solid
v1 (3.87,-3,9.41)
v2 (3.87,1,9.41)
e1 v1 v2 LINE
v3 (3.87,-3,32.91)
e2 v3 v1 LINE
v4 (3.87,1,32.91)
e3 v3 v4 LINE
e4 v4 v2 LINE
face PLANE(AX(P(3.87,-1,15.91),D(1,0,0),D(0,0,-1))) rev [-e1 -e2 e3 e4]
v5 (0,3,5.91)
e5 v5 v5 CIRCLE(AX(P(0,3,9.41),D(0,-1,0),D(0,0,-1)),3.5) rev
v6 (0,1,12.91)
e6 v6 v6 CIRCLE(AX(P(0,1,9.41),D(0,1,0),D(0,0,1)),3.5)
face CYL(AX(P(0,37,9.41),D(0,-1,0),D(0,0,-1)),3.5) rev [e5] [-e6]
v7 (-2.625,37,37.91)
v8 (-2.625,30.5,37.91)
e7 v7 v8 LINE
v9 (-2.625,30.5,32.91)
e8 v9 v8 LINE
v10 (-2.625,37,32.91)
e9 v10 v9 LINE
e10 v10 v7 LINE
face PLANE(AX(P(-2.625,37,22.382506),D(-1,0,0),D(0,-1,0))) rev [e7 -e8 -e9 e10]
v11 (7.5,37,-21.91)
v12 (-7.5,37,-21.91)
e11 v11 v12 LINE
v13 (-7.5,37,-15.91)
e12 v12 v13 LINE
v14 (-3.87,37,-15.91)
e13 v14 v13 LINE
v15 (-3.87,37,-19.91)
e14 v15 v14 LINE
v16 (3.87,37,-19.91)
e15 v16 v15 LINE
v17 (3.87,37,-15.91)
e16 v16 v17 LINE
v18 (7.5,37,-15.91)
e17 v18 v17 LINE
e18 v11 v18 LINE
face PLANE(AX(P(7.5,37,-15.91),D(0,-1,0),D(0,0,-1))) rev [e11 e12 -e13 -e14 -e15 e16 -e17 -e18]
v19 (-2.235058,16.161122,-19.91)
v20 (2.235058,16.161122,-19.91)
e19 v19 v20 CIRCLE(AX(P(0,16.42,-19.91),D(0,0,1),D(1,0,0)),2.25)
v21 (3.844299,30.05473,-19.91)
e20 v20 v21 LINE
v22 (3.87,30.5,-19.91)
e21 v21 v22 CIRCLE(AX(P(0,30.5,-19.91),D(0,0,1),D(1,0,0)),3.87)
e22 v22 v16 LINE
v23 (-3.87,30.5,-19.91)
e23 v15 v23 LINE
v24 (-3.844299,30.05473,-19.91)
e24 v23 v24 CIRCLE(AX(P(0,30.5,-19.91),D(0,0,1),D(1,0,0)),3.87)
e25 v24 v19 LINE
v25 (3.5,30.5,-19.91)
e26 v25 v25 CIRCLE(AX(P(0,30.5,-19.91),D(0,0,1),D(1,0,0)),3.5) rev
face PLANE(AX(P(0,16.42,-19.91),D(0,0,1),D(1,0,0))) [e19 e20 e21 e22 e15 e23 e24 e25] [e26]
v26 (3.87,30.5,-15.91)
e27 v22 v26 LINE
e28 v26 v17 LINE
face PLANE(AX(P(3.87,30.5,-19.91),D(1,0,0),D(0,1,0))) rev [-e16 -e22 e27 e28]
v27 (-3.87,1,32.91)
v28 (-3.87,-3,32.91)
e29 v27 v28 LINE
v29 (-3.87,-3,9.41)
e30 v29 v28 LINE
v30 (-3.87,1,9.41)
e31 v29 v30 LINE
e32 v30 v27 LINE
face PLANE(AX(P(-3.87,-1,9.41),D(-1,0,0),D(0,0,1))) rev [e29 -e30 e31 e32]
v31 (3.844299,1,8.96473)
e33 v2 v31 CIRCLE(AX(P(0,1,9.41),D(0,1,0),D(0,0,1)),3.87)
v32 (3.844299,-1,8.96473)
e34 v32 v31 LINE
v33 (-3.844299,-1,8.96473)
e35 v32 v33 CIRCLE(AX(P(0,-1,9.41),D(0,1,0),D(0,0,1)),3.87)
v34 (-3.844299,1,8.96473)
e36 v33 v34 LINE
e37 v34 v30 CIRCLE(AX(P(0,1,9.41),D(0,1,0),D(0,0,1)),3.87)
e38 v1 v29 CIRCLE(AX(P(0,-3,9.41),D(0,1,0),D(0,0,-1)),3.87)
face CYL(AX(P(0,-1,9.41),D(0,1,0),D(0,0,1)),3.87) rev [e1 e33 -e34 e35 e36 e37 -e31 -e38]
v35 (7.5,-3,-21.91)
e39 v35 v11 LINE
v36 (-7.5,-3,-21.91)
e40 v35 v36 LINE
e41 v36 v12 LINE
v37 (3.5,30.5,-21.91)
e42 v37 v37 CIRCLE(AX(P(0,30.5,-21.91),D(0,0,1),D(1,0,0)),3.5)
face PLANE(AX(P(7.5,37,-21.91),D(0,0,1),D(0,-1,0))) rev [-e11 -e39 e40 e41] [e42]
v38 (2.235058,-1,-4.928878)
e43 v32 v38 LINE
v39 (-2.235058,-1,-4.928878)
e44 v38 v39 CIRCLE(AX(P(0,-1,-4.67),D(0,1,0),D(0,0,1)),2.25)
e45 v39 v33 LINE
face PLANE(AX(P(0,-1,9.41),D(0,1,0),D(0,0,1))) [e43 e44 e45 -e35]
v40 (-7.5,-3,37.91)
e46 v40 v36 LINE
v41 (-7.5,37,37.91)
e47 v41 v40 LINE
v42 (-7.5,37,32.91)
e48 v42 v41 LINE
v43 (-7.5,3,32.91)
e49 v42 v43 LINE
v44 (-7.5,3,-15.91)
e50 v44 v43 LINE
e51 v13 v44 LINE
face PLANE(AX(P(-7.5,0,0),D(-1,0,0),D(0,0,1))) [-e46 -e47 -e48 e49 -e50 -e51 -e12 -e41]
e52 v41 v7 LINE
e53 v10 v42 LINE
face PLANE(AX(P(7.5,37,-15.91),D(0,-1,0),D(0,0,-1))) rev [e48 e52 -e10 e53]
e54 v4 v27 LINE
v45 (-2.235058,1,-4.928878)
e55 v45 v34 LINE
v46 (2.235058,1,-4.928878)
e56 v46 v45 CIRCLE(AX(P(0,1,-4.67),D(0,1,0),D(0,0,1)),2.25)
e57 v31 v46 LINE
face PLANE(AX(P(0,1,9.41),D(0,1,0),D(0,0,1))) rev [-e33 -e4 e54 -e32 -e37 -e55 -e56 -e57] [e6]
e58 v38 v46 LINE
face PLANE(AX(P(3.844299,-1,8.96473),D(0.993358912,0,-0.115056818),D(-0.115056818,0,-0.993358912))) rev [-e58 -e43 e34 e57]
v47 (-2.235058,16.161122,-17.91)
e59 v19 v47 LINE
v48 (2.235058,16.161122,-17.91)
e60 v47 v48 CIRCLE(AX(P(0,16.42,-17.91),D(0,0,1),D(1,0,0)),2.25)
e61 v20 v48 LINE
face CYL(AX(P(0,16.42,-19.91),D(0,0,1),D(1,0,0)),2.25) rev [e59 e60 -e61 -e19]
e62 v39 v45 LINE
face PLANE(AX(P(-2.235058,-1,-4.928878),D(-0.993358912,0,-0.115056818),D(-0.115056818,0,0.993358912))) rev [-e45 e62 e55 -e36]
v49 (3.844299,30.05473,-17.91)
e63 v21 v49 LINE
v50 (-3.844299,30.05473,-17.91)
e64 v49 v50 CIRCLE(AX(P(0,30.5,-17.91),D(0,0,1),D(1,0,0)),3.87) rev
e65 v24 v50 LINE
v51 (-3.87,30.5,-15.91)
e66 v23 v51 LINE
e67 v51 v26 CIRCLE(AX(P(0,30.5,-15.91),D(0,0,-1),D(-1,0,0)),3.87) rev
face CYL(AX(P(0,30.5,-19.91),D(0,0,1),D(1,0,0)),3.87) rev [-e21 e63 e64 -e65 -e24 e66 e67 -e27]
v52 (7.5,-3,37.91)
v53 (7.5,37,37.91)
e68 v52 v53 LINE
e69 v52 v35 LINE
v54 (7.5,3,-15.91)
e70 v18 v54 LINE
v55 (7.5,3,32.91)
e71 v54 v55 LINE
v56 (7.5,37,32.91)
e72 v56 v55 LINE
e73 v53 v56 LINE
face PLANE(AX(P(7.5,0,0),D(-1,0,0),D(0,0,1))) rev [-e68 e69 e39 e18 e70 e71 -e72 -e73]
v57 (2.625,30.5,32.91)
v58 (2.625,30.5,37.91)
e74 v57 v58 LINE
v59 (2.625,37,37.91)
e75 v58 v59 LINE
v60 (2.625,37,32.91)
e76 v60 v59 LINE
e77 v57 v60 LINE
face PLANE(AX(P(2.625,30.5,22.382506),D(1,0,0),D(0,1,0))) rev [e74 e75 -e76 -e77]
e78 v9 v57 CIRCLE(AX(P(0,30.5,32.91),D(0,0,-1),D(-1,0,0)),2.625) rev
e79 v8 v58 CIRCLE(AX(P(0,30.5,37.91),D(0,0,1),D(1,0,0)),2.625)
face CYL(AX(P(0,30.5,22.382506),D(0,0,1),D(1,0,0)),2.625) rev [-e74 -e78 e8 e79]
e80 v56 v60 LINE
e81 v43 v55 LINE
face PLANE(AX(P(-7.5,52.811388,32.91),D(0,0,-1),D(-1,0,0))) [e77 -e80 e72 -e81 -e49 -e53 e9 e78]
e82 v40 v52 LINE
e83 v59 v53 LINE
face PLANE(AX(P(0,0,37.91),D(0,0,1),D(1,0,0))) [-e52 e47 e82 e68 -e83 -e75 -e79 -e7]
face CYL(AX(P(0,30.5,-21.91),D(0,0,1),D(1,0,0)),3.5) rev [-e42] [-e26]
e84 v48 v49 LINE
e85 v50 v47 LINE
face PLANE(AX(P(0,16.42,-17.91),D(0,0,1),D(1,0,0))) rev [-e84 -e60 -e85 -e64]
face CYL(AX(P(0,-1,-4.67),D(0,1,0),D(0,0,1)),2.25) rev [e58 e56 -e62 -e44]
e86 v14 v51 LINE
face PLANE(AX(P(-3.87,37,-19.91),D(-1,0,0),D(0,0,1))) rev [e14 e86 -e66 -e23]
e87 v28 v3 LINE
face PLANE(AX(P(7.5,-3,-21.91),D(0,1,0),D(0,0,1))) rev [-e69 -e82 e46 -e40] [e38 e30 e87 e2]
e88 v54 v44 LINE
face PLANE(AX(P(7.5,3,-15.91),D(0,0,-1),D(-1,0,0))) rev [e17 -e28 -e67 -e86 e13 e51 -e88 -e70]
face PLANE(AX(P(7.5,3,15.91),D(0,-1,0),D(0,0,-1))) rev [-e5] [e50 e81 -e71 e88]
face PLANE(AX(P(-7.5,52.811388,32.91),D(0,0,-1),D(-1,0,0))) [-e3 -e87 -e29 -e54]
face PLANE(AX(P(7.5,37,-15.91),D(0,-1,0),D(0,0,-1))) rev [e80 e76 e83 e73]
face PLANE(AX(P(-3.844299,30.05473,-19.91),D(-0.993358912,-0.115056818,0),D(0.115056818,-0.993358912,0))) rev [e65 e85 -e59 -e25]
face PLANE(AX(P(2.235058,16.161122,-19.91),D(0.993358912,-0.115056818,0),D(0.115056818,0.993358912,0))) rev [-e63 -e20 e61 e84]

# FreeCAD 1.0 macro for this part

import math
import FreeCAD as App
import Part
import Sketcher
from FreeCAD import Vector
Q = App.Units.Quantity

doc = App.newDocument("Part")
params = doc.addObject("Spreadsheet::Sheet", "Params")
for row, (alias, value) in enumerate([
    ("sketch1_width", "6 mm"),
    ("sketch1_width2", "40 mm"),
    ("sketch1_height", "37.82 mm"),
    ("pad1_length", "15 mm"),
    ("sketch2_diameter", "7 mm"),
    ("sketch3_diameter", "7 mm"),
    ("sketch4_radius", "3.87 mm"),
    ("sketch4_radius2", "2.25 mm"),
    ("sketch4_height", "6.5 mm"),
    ("pocket3_length", "2 mm"),
    ("sketch5_radius", "3.87 mm"),
    ("sketch5_height", "6.5 mm"),
    ("sketch6_radius", "3.87 mm"),
    ("sketch6_radius2", "2.25 mm"),
    ("sketch6_height", "6.5 mm"),
    ("pocket5_length", "2 mm"),
    ("sketch7_radius", "3.87 mm"),
    ("sketch7_height", "6.5 mm"),
    ("sketch8_width", "15 mm"),
    ("sketch8_height", "4 mm"),
    ("sketch8_height2", "6 mm"),
    ("sketch8_width2", "3.63 mm"),
    ("pad2_length", "22 mm"),
    ("sketch9_width", "15 mm"),
    ("sketch9_height", "5 mm"),
    ("pad3_length", "40 mm"),
    ("sketch10_height", "6.5 mm"),
    ("pocket7_length", "5 mm"),
], start=1):
    params.set(f"A{row}", alias)
    params.set(f"B{row}", "=" + value)
    params.setAlias(f"B{row}", alias)

body = doc.addObject("PartDesign::Body", "Body")

sketch1 = doc.addObject("Sketcher::SketchObject", "Sketch")
body.addObject(sketch1)
sketch1.AttachmentSupport = (doc.YZ_Plane, [""])
sketch1.MapMode = "FlatFace"
sketch1.addGeometry([
    Part.LineSegment(Vector(3, 15.91, 0), Vector(-3, 15.91, 0)),
    Part.LineSegment(Vector(-3, 15.91, 0), Vector(-3, -21.91, 0)),
    Part.LineSegment(Vector(-3, -21.91, 0), Vector(37, -21.91, 0)),
    Part.LineSegment(Vector(37, -21.91, 0), Vector(37, -15.91, 0)),
    Part.LineSegment(Vector(37, -15.91, 0), Vector(3, -15.91, 0)),
    Part.LineSegment(Vector(3, -15.91, 0), Vector(3, 15.91, 0)),
], False)
sketch1.addConstraint([
    Sketcher.Constraint("Coincident", 0, 2, 1, 1),
    Sketcher.Constraint("Coincident", 1, 2, 2, 1),
    Sketcher.Constraint("Coincident", 2, 2, 3, 1),
    Sketcher.Constraint("Coincident", 3, 2, 4, 1),
    Sketcher.Constraint("Coincident", 4, 2, 5, 1),
    Sketcher.Constraint("Coincident", 5, 2, 0, 1),
    Sketcher.Constraint("Horizontal", 0),
    Sketcher.Constraint("Vertical", 1),
    Sketcher.Constraint("Horizontal", 2),
    Sketcher.Constraint("Vertical", 3),
    Sketcher.Constraint("Horizontal", 4),
    Sketcher.Constraint("Vertical", 5),
    Sketcher.Constraint("Symmetric", 0, 2, 4, 2, -1, 1),
    Sketcher.Constraint("Equal", 0, 3),
    Sketcher.Constraint("DistanceX", 0, 2, 0, 1, Q("6 mm")),
    Sketcher.Constraint("DistanceX", 2, 1, 2, 2, Q("40 mm")),
    Sketcher.Constraint("DistanceY", 1, 2, 1, 1, Q("37.82 mm")),
])
sketch1.setExpression("Constraints[14]", "Params.sketch1_width")
sketch1.setExpression("Constraints[15]", "Params.sketch1_width2")
sketch1.setExpression("Constraints[16]", "Params.sketch1_height")
pad1 = doc.addObject("PartDesign::Pad", "Pad")
body.addObject(pad1)
pad1.Profile = sketch1
pad1.setExpression("Length", "Params.pad1_length")
pad1.Midplane = True

sketch2 = doc.addObject("Sketcher::SketchObject", "Sketch001")
body.addObject(sketch2)
sketch2.AttachmentSupport = (doc.XZ_Plane, [""])
sketch2.MapMode = "FlatFace"
sketch2.addGeometry(Part.Circle(Vector(0, 9.41, 0), Vector(0, 0, 1), 3.5), False)
sketch2.addConstraint([
    Sketcher.Constraint("PointOnObject", 0, 3, -2),
    Sketcher.Constraint("Diameter", 0, Q("7 mm")),
    Sketcher.Constraint("DistanceY", -1, 1, 0, 3, Q("9.41 mm")),
])
sketch2.setExpression("Constraints[1]", "Params.sketch2_diameter")
pocket1 = doc.addObject("PartDesign::Pocket", "Pocket")
body.addObject(pocket1)
pocket1.Profile = sketch2
pocket1.Type = "ThroughAll"

sketch3 = doc.addObject("Sketcher::SketchObject", "Sketch002")
body.addObject(sketch3)
sketch3.AttachmentSupport = (doc.XY_Plane, [""])
sketch3.MapMode = "FlatFace"
sketch3.AttachmentOffset = App.Placement(Vector(0, 0, -18.91), App.Rotation())
sketch3.addGeometry(Part.Circle(Vector(0, 30.5, 0), Vector(0, 0, 1), 3.5), False)
sketch3.addConstraint([
    Sketcher.Constraint("PointOnObject", 0, 3, -2),
    Sketcher.Constraint("Diameter", 0, Q("7 mm")),
    Sketcher.Constraint("DistanceY", -1, 1, 0, 3, Q("30.5 mm")),
])
sketch3.setExpression("Constraints[1]", "Params.sketch3_diameter")
pocket2 = doc.addObject("PartDesign::Pocket", "Pocket001")
body.addObject(pocket2)
pocket2.Profile = sketch3
pocket2.Type = "ThroughAll"

sketch4 = doc.addObject("Sketcher::SketchObject", "Sketch003")
body.addObject(sketch4)
sketch4.AttachmentSupport = (doc.XY_Plane, [""])
sketch4.MapMode = "FlatFace"
sketch4.AttachmentOffset = App.Placement(Vector(0, 0, -18.91), App.Rotation())
sketch4.addGeometry([
    Part.LineSegment(Vector(2.235058, 16.161122, 0), Vector(3.844299, 30.05473, 0)),
    Part.ArcOfCircle(Part.Circle(Vector(0, 30.5, 0), Vector(0, 0, 1), 3.87), math.radians(-6.606902), math.radians(0)),
    Part.LineSegment(Vector(3.87, 30.5, 0), Vector(3.87, 37, 0)),
    Part.LineSegment(Vector(3.87, 37, 0), Vector(-3.87, 37, 0)),
    Part.LineSegment(Vector(-3.87, 37, 0), Vector(-3.87, 30.5, 0)),
    Part.ArcOfCircle(Part.Circle(Vector(0, 30.5, 0), Vector(0, 0, 1), 3.87), math.radians(180), math.radians(186.606902)),
    Part.LineSegment(Vector(-3.844299, 30.05473, 0), Vector(-2.235058, 16.161122, 0)),
    Part.ArcOfCircle(Part.Circle(Vector(0, 16.42, 0), Vector(0, 0, 1), 2.25), math.radians(-173.393098), math.radians(-6.606902)),
], False)
sketch4.addConstraint([
    Sketcher.Constraint("Tangent", 0, 2, 1, 1),
    Sketcher.Constraint("Tangent", 1, 2, 2, 1),
    Sketcher.Constraint("Coincident", 2, 2, 3, 1),
    Sketcher.Constraint("Coincident", 3, 2, 4, 1),
    Sketcher.Constraint("Tangent", 4, 2, 5, 1),
    Sketcher.Constraint("Tangent", 5, 2, 6, 1),
    Sketcher.Constraint("Tangent", 6, 2, 7, 1),
    Sketcher.Constraint("Tangent", 7, 2, 0, 1),
    Sketcher.Constraint("Vertical", 2),
    Sketcher.Constraint("Horizontal", 3),
    Sketcher.Constraint("Vertical", 4),
    Sketcher.Constraint("Coincident", 5, 3, 1, 3),
    Sketcher.Constraint("Equal", 1, 5),
    Sketcher.Constraint("Symmetric", 0, 2, 5, 2, -2),
    Sketcher.Constraint("Radius", 1, Q("3.87 mm")),
    Sketcher.Constraint("Radius", 7, Q("2.25 mm")),
    Sketcher.Constraint("DistanceY", 2, 1, 2, 2, Q("6.5 mm")),
    Sketcher.Constraint("DistanceY", -1, 1, 2, 2, Q("37 mm")),
    Sketcher.Constraint("DistanceY", -1, 1, 7, 3, Q("16.42 mm")),
])
sketch4.setExpression("Constraints[14]", "Params.sketch4_radius")
sketch4.setExpression("Constraints[15]", "Params.sketch4_radius2")
sketch4.setExpression("Constraints[16]", "Params.sketch4_height")
pocket3 = doc.addObject("PartDesign::Pocket", "Pocket002")
body.addObject(pocket3)
pocket3.Profile = sketch4
pocket3.setExpression("Length", "Params.pocket3_length")
pocket3.Midplane = True

sketch5 = doc.addObject("Sketcher::SketchObject", "Sketch004")
body.addObject(sketch5)
sketch5.AttachmentSupport = (doc.XY_Plane, [""])
sketch5.MapMode = "FlatFace"
sketch5.AttachmentOffset = App.Placement(Vector(0, 0, -19.91), App.Rotation())
sketch5.addGeometry([
    Part.LineSegment(Vector(3.87, 30.5, 0), Vector(3.87, 37, 0)),
    Part.LineSegment(Vector(3.87, 37, 0), Vector(-3.87, 37, 0)),
    Part.LineSegment(Vector(-3.87, 37, 0), Vector(-3.87, 30.5, 0)),
    Part.ArcOfCircle(Part.Circle(Vector(0, 30.5, 0), Vector(0, 0, 1), 3.87), math.radians(180), math.radians(360)),
], False)
sketch5.addConstraint([
    Sketcher.Constraint("Coincident", 0, 2, 1, 1),
    Sketcher.Constraint("Coincident", 1, 2, 2, 1),
    Sketcher.Constraint("Tangent", 2, 2, 3, 1),
    Sketcher.Constraint("Tangent", 3, 2, 0, 1),
    Sketcher.Constraint("Vertical", 0),
    Sketcher.Constraint("Horizontal", 1),
    Sketcher.Constraint("Vertical", 2),
    Sketcher.Constraint("PointOnObject", 3, 3, -2),
    Sketcher.Constraint("Radius", 3, Q("3.87 mm")),
    Sketcher.Constraint("DistanceY", 0, 1, 0, 2, Q("6.5 mm")),
    Sketcher.Constraint("DistanceY", -1, 1, 0, 2, Q("37 mm")),
])
sketch5.setExpression("Constraints[8]", "Params.sketch5_radius")
sketch5.setExpression("Constraints[9]", "Params.sketch5_height")
pocket4 = doc.addObject("PartDesign::Pocket", "Pocket003")
body.addObject(pocket4)
pocket4.Profile = sketch5
pocket4.Type = "ThroughAll"
pocket4.Reversed = True

sketch6 = doc.addObject("Sketcher::SketchObject", "Sketch005")
body.addObject(sketch6)
sketch6.AttachmentSupport = (doc.XZ_Plane, [""])
sketch6.MapMode = "FlatFace"
sketch6.addGeometry([
    Part.LineSegment(Vector(-3.87, 9.41, 0), Vector(-3.87, 15.91, 0)),
    Part.LineSegment(Vector(-3.87, 15.91, 0), Vector(3.87, 15.91, 0)),
    Part.LineSegment(Vector(3.87, 15.91, 0), Vector(3.87, 9.41, 0)),
    Part.ArcOfCircle(Part.Circle(Vector(0, 9.41, 0), Vector(0, 0, 1), 3.87), math.radians(-6.606902), math.radians(0)),
    Part.LineSegment(Vector(3.844299, 8.96473, 0), Vector(2.235058, -4.928878, 0)),
    Part.ArcOfCircle(Part.Circle(Vector(0, -4.67, 0), Vector(0, 0, 1), 2.25), math.radians(-173.393098), math.radians(-6.606902)),
    Part.LineSegment(Vector(-2.235058, -4.928878, 0), Vector(-3.844299, 8.96473, 0)),
    Part.ArcOfCircle(Part.Circle(Vector(0, 9.41, 0), Vector(0, 0, 1), 3.87), math.radians(180), math.radians(186.606902)),
], False)
sketch6.addConstraint([
    Sketcher.Constraint("Coincident", 0, 2, 1, 1),
    Sketcher.Constraint("Coincident", 1, 2, 2, 1),
    Sketcher.Constraint("Tangent", 2, 2, 3, 2),
    Sketcher.Constraint("Tangent", 3, 1, 4, 1),
    Sketcher.Constraint("Tangent", 4, 2, 5, 2),
    Sketcher.Constraint("Tangent", 5, 1, 6, 1),
    Sketcher.Constraint("Tangent", 6, 2, 7, 2),
    Sketcher.Constraint("Tangent", 7, 1, 0, 1),
    Sketcher.Constraint("Vertical", 0),
    Sketcher.Constraint("Horizontal", 1),
    Sketcher.Constraint("Vertical", 2),
    Sketcher.Constraint("Coincident", 7, 3, 3, 3),
    Sketcher.Constraint("Equal", 3, 7),
    Sketcher.Constraint("Symmetric", 4, 2, 5, 1, -2),
    Sketcher.Constraint("Radius", 3, Q("3.87 mm")),
    Sketcher.Constraint("Radius", 5, Q("2.25 mm")),
    Sketcher.Constraint("DistanceY", 0, 1, 0, 2, Q("6.5 mm")),
    Sketcher.Constraint("DistanceY", -1, 1, 3, 3, Q("9.41 mm")),
    Sketcher.Constraint("DistanceY", 5, 3, -1, 1, Q("4.67 mm")),
])
sketch6.setExpression("Constraints[14]", "Params.sketch6_radius")
sketch6.setExpression("Constraints[15]", "Params.sketch6_radius2")
sketch6.setExpression("Constraints[16]", "Params.sketch6_height")
pocket5 = doc.addObject("PartDesign::Pocket", "Pocket004")
body.addObject(pocket5)
pocket5.Profile = sketch6
pocket5.setExpression("Length", "Params.pocket5_length")
pocket5.Midplane = True

sketch7 = doc.addObject("Sketcher::SketchObject", "Sketch006")
body.addObject(sketch7)
sketch7.AttachmentSupport = (doc.XZ_Plane, [""])
sketch7.MapMode = "FlatFace"
sketch7.addGeometry([
    Part.LineSegment(Vector(-3.87, 15.91, 0), Vector(3.87, 15.91, 0)),
    Part.LineSegment(Vector(3.87, 15.91, 0), Vector(3.87, 9.41, 0)),
    Part.ArcOfCircle(Part.Circle(Vector(0, 9.41, 0), Vector(0, 0, 1), 3.87), math.radians(180), math.radians(360)),
    Part.LineSegment(Vector(-3.87, 9.41, 0), Vector(-3.87, 15.91, 0)),
], False)
sketch7.addConstraint([
    Sketcher.Constraint("Coincident", 0, 2, 1, 1),
    Sketcher.Constraint("Tangent", 1, 2, 2, 2),
    Sketcher.Constraint("Tangent", 2, 1, 3, 1),
    Sketcher.Constraint("Coincident", 3, 2, 0, 1),
    Sketcher.Constraint("Horizontal", 0),
    Sketcher.Constraint("Vertical", 1),
    Sketcher.Constraint("Vertical", 3),
    Sketcher.Constraint("PointOnObject", 2, 3, -2),
    Sketcher.Constraint("Radius", 2, Q("3.87 mm")),
    Sketcher.Constraint("DistanceY", 1, 2, 1, 1, Q("6.5 mm")),
    Sketcher.Constraint("DistanceY", -1, 1, 2, 3, Q("9.41 mm")),
])
sketch7.setExpression("Constraints[8]", "Params.sketch7_radius")
sketch7.setExpression("Constraints[9]", "Params.sketch7_height")
pocket6 = doc.addObject("PartDesign::Pocket", "Pocket005")
body.addObject(pocket6)
pocket6.Profile = sketch7
pocket6.Type = "ThroughAll"
pocket6.Reversed = True

sketch8 = doc.addObject("Sketcher::SketchObject", "Sketch007")
body.addObject(sketch8)
sketch8.AttachmentSupport = (doc.XY_Plane, [""])
sketch8.MapMode = "FlatFace"
sketch8.AttachmentOffset = App.Placement(Vector(0, 0, 15.91), App.Rotation())
sketch8.addGeometry([
    Part.LineSegment(Vector(-7.5, -3, 0), Vector(-3.87, -3, 0)),
    Part.LineSegment(Vector(-3.87, -3, 0), Vector(-3.87, 1, 0)),
    Part.LineSegment(Vector(-3.87, 1, 0), Vector(3.87, 1, 0)),
    Part.LineSegment(Vector(3.87, 1, 0), Vector(3.87, -3, 0)),
    Part.LineSegment(Vector(3.87, -3, 0), Vector(7.5, -3, 0)),
    Part.LineSegment(Vector(7.5, -3, 0), Vector(7.5, 3, 0)),
    Part.LineSegment(Vector(7.5, 3, 0), Vector(-7.5, 3, 0)),
    Part.LineSegment(Vector(-7.5, 3, 0), Vector(-7.5, -3, 0)),
], False)
sketch8.addConstraint([
    Sketcher.Constraint("Coincident", 0, 2, 1, 1),
    Sketcher.Constraint("Coincident", 1, 2, 2, 1),
    Sketcher.Constraint("Coincident", 2, 2, 3, 1),
    Sketcher.Constraint("Coincident", 3, 2, 4, 1),
    Sketcher.Constraint("Coincident", 4, 2, 5, 1),
    Sketcher.Constraint("Coincident", 5, 2, 6, 1),
    Sketcher.Constraint("Coincident", 6, 2, 7, 1),
    Sketcher.Constraint("Coincident", 7, 2, 0, 1),
    Sketcher.Constraint("Horizontal", 0),
    Sketcher.Constraint("Vertical", 1),
    Sketcher.Constraint("Horizontal", 2),
    Sketcher.Constraint("Vertical", 3),
    Sketcher.Constraint("Horizontal", 4),
    Sketcher.Constraint("Vertical", 5),
    Sketcher.Constraint("Horizontal", 6),
    Sketcher.Constraint("Vertical", 7),
    Sketcher.Constraint("Symmetric", 4, 2, 6, 2, -1, 1),
    Sketcher.Constraint("Symmetric", 0, 2, 3, 2, -2),
    Sketcher.Constraint("DistanceX", 6, 2, 6, 1, Q("15 mm")),
    Sketcher.Constraint("DistanceY", 1, 1, 1, 2, Q("4 mm")),
    Sketcher.Constraint("DistanceY", 5, 1, 5, 2, Q("6 mm")),
    Sketcher.Constraint("DistanceX", 0, 1, 0, 2, Q("3.63 mm")),
])
sketch8.setExpression("Constraints[18]", "Params.sketch8_width")
sketch8.setExpression("Constraints[19]", "Params.sketch8_height")
sketch8.setExpression("Constraints[20]", "Params.sketch8_height2")
sketch8.setExpression("Constraints[21]", "Params.sketch8_width2")
pad2 = doc.addObject("PartDesign::Pad", "Pad001")
body.addObject(pad2)
pad2.Profile = sketch8
pad2.setExpression("Length", "Params.pad2_length")

sketch9 = doc.addObject("Sketcher::SketchObject", "Sketch008")
body.addObject(sketch9)
sketch9.AttachmentSupport = (doc.XZ_Plane, [""])
sketch9.MapMode = "FlatFace"
sketch9.AttachmentOffset = App.Placement(Vector(0, 0, -37), App.Rotation())
sketch9.addGeometry([
    Part.LineSegment(Vector(-7.5, 37.91, 0), Vector(-7.5, 32.91, 0)),
    Part.LineSegment(Vector(-7.5, 32.91, 0), Vector(7.5, 32.91, 0)),
    Part.LineSegment(Vector(7.5, 32.91, 0), Vector(7.5, 37.91, 0)),
    Part.LineSegment(Vector(7.5, 37.91, 0), Vector(-7.5, 37.91, 0)),
], False)
sketch9.addConstraint([
    Sketcher.Constraint("Coincident", 0, 2, 1, 1),
    Sketcher.Constraint("Coincident", 1, 2, 2, 1),
    Sketcher.Constraint("Coincident", 2, 2, 3, 1),
    Sketcher.Constraint("Coincident", 3, 2, 0, 1),
    Sketcher.Constraint("Vertical", 0),
    Sketcher.Constraint("Horizontal", 1),
    Sketcher.Constraint("Vertical", 2),
    Sketcher.Constraint("Horizontal", 3),
    Sketcher.Constraint("DistanceX", 1, 1, 1, 2, Q("15 mm")),
    Sketcher.Constraint("DistanceY", 0, 2, 0, 1, Q("5 mm")),
    Sketcher.Constraint("DistanceX", 0, 2, -1, 1, Q("7.5 mm")),
    Sketcher.Constraint("DistanceY", -1, 1, 0, 2, Q("32.91 mm")),
])
sketch9.setExpression("Constraints[8]", "Params.sketch9_width")
sketch9.setExpression("Constraints[9]", "Params.sketch9_height")
pad3 = doc.addObject("PartDesign::Pad", "Pad002")
body.addObject(pad3)
pad3.Profile = sketch9
pad3.setExpression("Length", "Params.pad3_length")

sketch10 = doc.addObject("Sketcher::SketchObject", "Sketch009")
body.addObject(sketch10)
sketch10.AttachmentSupport = (doc.XY_Plane, [""])
sketch10.MapMode = "FlatFace"
sketch10.AttachmentOffset = App.Placement(Vector(0, 0, 37.91), App.Rotation())
sketch10.addGeometry([
    Part.LineSegment(Vector(-2.625, 37, 0), Vector(-2.625, 30.5, 0)),
    Part.ArcOfCircle(Part.Circle(Vector(0, 30.5, 0), Vector(0, 0, 1), 2.625), math.radians(180), math.radians(360)),
    Part.LineSegment(Vector(2.625, 30.5, 0), Vector(2.625, 37, 0)),
    Part.LineSegment(Vector(2.625, 37, 0), Vector(-2.625, 37, 0)),
], False)
sketch10.addConstraint([
    Sketcher.Constraint("Tangent", 0, 2, 1, 1),
    Sketcher.Constraint("Tangent", 1, 2, 2, 1),
    Sketcher.Constraint("Coincident", 2, 2, 3, 1),
    Sketcher.Constraint("Coincident", 3, 2, 0, 1),
    Sketcher.Constraint("Vertical", 0),
    Sketcher.Constraint("Vertical", 2),
    Sketcher.Constraint("Horizontal", 3),
    Sketcher.Constraint("PointOnObject", 1, 3, -2),
    Sketcher.Constraint("DistanceY", 0, 2, 0, 1, Q("6.5 mm")),
    Sketcher.Constraint("DistanceY", -1, 1, 2, 2, Q("37 mm")),
    Sketcher.Constraint("Radius", 1, Q("2.625 mm")),
])
sketch10.setExpression("Constraints[8]", "Params.sketch10_height")
pocket7 = doc.addObject("PartDesign::Pocket", "Pocket006")
body.addObject(pocket7)
pocket7.Profile = sketch10
pocket7.setExpression("Length", "Params.pocket7_length")

doc.recompute()
